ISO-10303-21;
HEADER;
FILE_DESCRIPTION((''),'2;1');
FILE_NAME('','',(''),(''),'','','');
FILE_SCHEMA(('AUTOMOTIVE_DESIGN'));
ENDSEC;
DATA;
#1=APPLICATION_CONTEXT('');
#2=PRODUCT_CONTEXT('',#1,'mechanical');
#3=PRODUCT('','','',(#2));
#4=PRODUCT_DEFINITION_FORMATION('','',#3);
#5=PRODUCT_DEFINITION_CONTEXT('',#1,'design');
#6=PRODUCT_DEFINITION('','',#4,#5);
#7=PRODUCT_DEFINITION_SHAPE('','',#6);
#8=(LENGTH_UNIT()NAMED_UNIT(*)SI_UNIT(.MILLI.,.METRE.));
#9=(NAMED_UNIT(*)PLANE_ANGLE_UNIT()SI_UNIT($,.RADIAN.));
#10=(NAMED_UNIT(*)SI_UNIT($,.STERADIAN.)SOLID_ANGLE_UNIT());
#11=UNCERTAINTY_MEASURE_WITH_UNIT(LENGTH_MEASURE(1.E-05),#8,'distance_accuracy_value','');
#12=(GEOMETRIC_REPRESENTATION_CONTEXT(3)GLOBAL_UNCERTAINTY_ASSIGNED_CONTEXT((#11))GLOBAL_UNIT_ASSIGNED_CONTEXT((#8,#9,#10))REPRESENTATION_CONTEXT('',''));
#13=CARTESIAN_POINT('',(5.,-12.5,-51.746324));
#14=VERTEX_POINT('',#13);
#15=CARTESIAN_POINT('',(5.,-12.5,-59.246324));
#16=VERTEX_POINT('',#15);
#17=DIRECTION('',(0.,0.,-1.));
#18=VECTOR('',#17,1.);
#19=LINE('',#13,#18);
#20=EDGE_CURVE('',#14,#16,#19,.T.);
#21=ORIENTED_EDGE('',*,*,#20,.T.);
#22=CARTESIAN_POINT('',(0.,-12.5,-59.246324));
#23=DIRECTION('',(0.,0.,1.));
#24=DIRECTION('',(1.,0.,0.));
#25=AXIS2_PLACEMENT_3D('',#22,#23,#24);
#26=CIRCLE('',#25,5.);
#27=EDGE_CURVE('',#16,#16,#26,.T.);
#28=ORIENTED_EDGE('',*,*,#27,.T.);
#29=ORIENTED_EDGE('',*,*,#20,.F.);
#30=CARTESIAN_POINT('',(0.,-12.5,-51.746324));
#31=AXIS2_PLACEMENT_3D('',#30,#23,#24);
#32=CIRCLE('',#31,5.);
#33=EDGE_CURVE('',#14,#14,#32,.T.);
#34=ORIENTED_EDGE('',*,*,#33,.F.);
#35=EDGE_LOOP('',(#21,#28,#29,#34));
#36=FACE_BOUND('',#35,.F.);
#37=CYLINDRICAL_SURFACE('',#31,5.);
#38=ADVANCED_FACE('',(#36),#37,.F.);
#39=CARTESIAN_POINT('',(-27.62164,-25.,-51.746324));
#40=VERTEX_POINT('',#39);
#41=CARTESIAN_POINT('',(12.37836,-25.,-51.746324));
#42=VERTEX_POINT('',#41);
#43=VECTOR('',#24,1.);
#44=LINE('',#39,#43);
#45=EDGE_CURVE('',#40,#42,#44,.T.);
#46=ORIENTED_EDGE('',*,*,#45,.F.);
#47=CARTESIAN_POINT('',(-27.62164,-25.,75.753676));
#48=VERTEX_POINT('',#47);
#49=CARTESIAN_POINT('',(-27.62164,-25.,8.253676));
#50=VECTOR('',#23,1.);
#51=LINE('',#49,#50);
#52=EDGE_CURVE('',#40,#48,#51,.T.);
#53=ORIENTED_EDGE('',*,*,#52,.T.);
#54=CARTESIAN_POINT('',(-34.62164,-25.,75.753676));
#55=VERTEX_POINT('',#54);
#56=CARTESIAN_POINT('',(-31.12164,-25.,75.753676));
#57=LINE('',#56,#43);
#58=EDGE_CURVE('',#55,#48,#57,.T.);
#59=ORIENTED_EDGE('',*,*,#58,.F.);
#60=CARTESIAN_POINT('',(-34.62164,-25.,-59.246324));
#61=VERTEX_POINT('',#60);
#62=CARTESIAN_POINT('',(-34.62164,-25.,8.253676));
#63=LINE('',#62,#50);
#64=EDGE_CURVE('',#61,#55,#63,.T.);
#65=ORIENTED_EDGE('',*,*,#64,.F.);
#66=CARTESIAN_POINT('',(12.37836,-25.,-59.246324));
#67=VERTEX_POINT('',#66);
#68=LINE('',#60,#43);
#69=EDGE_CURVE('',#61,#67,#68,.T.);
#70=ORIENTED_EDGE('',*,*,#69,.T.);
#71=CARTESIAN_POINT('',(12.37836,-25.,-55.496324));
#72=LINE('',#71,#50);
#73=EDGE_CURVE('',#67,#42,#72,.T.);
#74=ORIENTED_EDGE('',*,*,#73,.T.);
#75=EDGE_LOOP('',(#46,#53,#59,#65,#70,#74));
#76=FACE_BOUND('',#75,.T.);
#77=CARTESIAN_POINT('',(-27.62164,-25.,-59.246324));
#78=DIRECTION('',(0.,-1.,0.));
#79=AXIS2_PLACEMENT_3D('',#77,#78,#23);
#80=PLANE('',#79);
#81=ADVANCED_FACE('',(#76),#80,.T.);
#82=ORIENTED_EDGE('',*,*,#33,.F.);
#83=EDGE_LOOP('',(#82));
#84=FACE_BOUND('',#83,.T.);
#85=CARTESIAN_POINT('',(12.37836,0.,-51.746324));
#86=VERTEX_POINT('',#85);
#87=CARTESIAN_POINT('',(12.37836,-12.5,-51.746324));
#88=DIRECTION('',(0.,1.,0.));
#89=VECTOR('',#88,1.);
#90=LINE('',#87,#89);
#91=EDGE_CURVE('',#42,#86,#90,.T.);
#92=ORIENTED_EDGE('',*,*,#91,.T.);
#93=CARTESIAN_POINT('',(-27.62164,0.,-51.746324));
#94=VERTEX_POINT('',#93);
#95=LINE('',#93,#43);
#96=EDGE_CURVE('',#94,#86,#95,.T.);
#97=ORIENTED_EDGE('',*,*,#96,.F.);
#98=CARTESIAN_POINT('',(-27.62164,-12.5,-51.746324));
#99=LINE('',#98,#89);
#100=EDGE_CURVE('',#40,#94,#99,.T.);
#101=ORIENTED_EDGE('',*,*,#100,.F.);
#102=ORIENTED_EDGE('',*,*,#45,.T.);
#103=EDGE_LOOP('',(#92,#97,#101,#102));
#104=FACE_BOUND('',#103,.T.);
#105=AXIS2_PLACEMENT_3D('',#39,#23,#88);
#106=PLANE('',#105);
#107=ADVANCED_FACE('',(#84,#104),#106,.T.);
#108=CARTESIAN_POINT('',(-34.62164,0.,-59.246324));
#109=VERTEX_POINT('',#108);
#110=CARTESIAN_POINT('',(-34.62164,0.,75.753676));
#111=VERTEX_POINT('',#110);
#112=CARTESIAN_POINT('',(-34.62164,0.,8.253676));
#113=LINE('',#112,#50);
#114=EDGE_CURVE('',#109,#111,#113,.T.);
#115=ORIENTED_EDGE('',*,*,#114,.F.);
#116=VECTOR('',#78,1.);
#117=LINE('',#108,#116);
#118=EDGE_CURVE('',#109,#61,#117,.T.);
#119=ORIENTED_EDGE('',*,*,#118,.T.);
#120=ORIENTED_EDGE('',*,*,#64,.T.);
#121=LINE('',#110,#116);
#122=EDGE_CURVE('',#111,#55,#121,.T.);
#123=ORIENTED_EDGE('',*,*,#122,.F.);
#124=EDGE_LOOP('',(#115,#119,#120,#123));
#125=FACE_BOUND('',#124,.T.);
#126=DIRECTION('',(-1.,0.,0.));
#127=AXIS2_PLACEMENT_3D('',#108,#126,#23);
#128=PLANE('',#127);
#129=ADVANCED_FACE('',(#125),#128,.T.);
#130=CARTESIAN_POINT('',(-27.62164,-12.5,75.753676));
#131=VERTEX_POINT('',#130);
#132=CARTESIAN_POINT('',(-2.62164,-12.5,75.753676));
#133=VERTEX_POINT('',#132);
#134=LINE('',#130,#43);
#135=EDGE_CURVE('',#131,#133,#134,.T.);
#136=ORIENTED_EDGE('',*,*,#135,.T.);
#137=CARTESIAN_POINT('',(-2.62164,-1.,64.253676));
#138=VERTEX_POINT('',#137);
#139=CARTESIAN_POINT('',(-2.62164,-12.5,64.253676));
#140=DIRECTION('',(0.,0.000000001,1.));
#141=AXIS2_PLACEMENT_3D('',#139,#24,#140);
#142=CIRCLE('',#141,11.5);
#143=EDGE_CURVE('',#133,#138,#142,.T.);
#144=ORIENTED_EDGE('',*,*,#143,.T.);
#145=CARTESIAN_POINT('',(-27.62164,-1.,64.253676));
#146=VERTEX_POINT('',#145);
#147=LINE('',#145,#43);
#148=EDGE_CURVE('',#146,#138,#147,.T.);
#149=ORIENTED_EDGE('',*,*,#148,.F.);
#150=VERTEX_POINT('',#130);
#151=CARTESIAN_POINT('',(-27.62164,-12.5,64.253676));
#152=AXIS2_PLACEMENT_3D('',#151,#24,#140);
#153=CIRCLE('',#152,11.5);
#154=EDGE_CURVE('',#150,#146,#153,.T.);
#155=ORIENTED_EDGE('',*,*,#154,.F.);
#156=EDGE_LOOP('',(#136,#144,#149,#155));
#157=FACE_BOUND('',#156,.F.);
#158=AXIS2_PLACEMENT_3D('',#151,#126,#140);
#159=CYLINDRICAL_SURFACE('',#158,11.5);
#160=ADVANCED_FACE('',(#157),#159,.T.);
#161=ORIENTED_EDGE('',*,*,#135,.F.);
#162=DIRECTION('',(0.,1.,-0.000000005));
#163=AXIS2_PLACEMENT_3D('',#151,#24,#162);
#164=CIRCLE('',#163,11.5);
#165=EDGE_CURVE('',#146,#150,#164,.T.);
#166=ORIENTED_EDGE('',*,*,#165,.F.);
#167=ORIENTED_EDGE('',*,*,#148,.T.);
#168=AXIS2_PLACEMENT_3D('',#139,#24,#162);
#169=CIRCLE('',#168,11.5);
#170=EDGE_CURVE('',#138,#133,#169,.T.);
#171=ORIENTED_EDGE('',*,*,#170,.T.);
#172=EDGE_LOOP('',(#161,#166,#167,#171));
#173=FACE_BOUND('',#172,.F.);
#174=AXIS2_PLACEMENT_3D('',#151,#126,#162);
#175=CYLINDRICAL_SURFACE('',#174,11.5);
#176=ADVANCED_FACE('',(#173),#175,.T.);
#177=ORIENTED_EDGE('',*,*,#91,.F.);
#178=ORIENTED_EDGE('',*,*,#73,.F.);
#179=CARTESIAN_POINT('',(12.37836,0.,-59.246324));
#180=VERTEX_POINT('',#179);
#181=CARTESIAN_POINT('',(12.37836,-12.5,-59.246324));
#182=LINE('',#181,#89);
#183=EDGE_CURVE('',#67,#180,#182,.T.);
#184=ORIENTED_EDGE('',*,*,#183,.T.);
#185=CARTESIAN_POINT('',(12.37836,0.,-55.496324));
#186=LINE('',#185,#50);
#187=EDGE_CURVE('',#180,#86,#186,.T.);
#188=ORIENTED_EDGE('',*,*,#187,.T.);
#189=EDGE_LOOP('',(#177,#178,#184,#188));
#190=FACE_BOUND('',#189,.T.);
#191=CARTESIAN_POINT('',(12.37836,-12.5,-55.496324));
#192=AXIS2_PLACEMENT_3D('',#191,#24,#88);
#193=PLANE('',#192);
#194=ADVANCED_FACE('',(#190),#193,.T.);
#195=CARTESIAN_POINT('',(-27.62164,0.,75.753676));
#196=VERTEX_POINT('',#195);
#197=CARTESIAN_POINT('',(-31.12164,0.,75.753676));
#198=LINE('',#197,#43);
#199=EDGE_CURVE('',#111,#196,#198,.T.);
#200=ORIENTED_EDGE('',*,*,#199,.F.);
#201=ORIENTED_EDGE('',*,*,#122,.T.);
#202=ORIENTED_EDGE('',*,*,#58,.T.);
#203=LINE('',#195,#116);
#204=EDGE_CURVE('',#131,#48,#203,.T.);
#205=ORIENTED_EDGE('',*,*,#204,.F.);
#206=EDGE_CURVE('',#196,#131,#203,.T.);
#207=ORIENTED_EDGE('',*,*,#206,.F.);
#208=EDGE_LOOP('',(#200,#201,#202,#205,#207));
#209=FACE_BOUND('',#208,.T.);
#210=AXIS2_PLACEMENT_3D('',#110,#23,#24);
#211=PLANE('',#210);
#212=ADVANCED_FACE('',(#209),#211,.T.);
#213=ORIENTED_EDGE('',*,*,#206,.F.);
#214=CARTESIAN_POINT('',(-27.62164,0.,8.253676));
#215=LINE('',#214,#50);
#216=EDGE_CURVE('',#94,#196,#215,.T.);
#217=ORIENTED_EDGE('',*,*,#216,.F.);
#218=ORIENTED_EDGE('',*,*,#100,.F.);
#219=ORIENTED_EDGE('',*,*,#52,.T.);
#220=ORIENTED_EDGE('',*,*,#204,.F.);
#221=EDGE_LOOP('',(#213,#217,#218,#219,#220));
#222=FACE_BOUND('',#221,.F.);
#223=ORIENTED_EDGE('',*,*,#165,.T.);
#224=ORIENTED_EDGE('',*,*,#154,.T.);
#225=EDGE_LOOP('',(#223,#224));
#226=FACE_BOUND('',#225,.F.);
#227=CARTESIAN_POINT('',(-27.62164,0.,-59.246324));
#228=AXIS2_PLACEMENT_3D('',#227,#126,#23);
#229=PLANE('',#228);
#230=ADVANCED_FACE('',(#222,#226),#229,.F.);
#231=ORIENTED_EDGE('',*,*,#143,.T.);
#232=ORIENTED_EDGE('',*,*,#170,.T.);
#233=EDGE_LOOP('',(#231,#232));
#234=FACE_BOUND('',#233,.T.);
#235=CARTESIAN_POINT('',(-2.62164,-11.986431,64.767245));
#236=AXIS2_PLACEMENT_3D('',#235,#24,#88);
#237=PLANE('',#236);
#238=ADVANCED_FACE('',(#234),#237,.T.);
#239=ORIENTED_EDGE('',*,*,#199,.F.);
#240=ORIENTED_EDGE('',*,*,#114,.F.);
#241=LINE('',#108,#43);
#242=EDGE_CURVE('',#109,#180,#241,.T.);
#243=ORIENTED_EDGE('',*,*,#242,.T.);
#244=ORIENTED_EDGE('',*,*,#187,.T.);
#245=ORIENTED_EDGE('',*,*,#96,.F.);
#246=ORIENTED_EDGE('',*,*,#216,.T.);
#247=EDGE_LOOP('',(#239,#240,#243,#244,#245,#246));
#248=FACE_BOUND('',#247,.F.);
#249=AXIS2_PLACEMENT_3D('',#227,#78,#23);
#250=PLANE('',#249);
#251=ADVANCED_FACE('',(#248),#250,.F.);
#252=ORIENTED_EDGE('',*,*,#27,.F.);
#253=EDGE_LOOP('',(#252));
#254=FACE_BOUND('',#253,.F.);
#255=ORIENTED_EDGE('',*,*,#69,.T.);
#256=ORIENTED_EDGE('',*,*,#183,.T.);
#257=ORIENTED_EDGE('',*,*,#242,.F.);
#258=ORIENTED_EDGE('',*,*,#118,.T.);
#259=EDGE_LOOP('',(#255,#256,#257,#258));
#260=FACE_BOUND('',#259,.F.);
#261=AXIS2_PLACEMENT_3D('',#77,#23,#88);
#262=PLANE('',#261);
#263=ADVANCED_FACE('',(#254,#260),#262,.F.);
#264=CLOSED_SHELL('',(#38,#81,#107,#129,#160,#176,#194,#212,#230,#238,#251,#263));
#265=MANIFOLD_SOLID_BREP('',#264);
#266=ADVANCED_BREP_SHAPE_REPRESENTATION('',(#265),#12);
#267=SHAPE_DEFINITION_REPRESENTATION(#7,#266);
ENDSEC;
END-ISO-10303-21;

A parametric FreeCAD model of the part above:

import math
import FreeCAD as App
import Part
import Sketcher

doc = App.newDocument("Part")
body = doc.addObject("PartDesign::Body", "Body")

# Sketch on XZ plane
sketch1 = doc.addObject("Sketcher::SketchObject", "Sketch")
body.addObject(sketch1)
sketch1.AttachmentSupport = (doc.XZ_Plane, [""])
sketch1.MapMode = "FlatFace"
sketch1.addGeometry(Part.LineSegment(App.Vector(-34.62164, 75.753676, 0), App.Vector(-34.62164, -59.246324, 0)), False)
sketch1.addGeometry(Part.LineSegment(App.Vector(-34.62164, -59.246324, 0), App.Vector(-27.62164, -59.246324, 0)), False)
sketch1.addGeometry(Part.LineSegment(App.Vector(-27.62164, -59.246324, 0), App.Vector(-27.62164, 75.753676, 0)), False)
sketch1.addGeometry(Part.LineSegment(App.Vector(-27.62164, 75.753676, 0), App.Vector(-34.62164, 75.753676, 0)), False)
sketch1.addConstraint(Sketcher.Constraint("Coincident", 0, 2, 1, 1))
sketch1.addConstraint(Sketcher.Constraint("Coincident", 1, 2, 2, 1))
sketch1.addConstraint(Sketcher.Constraint("Coincident", 2, 2, 3, 1))
sketch1.addConstraint(Sketcher.Constraint("Coincident", 3, 2, 0, 1))
sketch1.addConstraint(Sketcher.Constraint("Vertical", 0))
sketch1.addConstraint(Sketcher.Constraint("Horizontal", 1))
sketch1.addConstraint(Sketcher.Constraint("Vertical", 2))
sketch1.addConstraint(Sketcher.Constraint("Horizontal", 3))
sketch1.addConstraint(Sketcher.Constraint("DistanceX", 1, 1, 1, 2, 7.0))
sketch1.addConstraint(Sketcher.Constraint("DistanceY", 0, 2, 0, 1, 135.0))
sketch1.addConstraint(Sketcher.Constraint("DistanceX", 0, 2, -1, 1, 34.62164))
sketch1.addConstraint(Sketcher.Constraint("DistanceY", 0, 2, -1, 1, 59.246324))
pad1 = doc.addObject("PartDesign::Pad", "Pad")
body.addObject(pad1)
pad1.Profile = sketch1
pad1.Length = 25

# Sketch on YZ plane
sketch2 = doc.addObject("Sketcher::SketchObject", "Sketch001")
body.addObject(sketch2)
sketch2.AttachmentSupport = (doc.YZ_Plane, [""])
sketch2.MapMode = "FlatFace"
sketch2.AttachmentOffset = App.Placement(App.Vector(0, 0, -27.62164), App.Rotation())
sketch2.addGeometry(Part.ArcOfCircle(Part.Circle(App.Vector(-12.5, 64.253676, 0), App.Vector(0, 0, 1), 11.5), math.radians(90), math.radians(360)), False)
sketch2.addGeometry(Part.ArcOfCircle(Part.Circle(App.Vector(-12.5, 64.253676, 0), App.Vector(0, 0, 1), 11.5), math.radians(0), math.radians(90)), False)
sketch2.addConstraint(Sketcher.Constraint("Tangent", 0, 1, 1, 2))
sketch2.addConstraint(Sketcher.Constraint("Coincident", 1, 1, 0, 2))
sketch2.addConstraint(Sketcher.Constraint("Horizontal", 0, 3, 1, 1))
sketch2.addConstraint(Sketcher.Constraint("Vertical", 1, 3, 0, 1))
sketch2.addConstraint(Sketcher.Constraint("Radius", 0, 11.5))
sketch2.addConstraint(Sketcher.Constraint("DistanceX", 1, 1, -1, 1, 1.0))
sketch2.addConstraint(Sketcher.Constraint("DistanceY", -1, 1, 0, 3, 64.253676))
pad2 = doc.addObject("PartDesign::Pad", "Pad001")
body.addObject(pad2)
pad2.Profile = sketch2
pad2.Length = 25

# Sketch on YZ plane
sketch3 = doc.addObject("Sketcher::SketchObject", "Sketch002")
body.addObject(sketch3)
sketch3.AttachmentSupport = (doc.YZ_Plane, [""])
sketch3.MapMode = "FlatFace"
sketch3.AttachmentOffset = App.Placement(App.Vector(0, 0, -27.62164), App.Rotation())
sketch3.addGeometry(Part.LineSegment(App.Vector(-25, -51.746324, 0), App.Vector(-25, -59.246324, 0)), False)
sketch3.addGeometry(Part.LineSegment(App.Vector(-25, -59.246324, 0), App.Vector(0, -59.246324, 0)), False)
sketch3.addGeometry(Part.LineSegment(App.Vector(0, -59.246324, 0), App.Vector(0, -51.746324, 0)), False)
sketch3.addGeometry(Part.LineSegment(App.Vector(0, -51.746324, 0), App.Vector(-25, -51.746324, 0)), False)
sketch3.addConstraint(Sketcher.Constraint("Coincident", 0, 2, 1, 1))
sketch3.addConstraint(Sketcher.Constraint("Coincident", 1, 2, 2, 1))
sketch3.addConstraint(Sketcher.Constraint("Coincident", 2, 2, 3, 1))
sketch3.addConstraint(Sketcher.Constraint("Coincident", 3, 2, 0, 1))
sketch3.addConstraint(Sketcher.Constraint("Vertical", 0))
sketch3.addConstraint(Sketcher.Constraint("Horizontal", 1))
sketch3.addConstraint(Sketcher.Constraint("Vertical", 2))
sketch3.addConstraint(Sketcher.Constraint("Horizontal", 3))
sketch3.addConstraint(Sketcher.Constraint("PointOnObject", 1, 2, -2))
sketch3.addConstraint(Sketcher.Constraint("DistanceX", 1, 1, 1, 2, 25.0))
sketch3.addConstraint(Sketcher.Constraint("DistanceY", 0, 2, 0, 1, 7.5))
sketch3.addConstraint(Sketcher.Constraint("DistanceY", 0, 2, -1, 1, 59.246324))
pad3 = doc.addObject("PartDesign::Pad", "Pad002")
body.addObject(pad3)
pad3.Profile = sketch3
pad3.Length = 40

# Sketch on XY plane
sketch4 = doc.addObject("Sketcher::SketchObject", "Sketch003")
body.addObject(sketch4)
sketch4.AttachmentSupport = (doc.XY_Plane, [""])
sketch4.MapMode = "FlatFace"
sketch4.AttachmentOffset = App.Placement(App.Vector(0, 0, -51.746324), App.Rotation())
sketch4.addGeometry(Part.Circle(App.Vector(0, -12.5, 0), App.Vector(0, 0, 1), 5), False)
sketch4.addConstraint(Sketcher.Constraint("PointOnObject", 0, 3, -2))
sketch4.addConstraint(Sketcher.Constraint("Diameter", 0, 10.0))
sketch4.addConstraint(Sketcher.Constraint("DistanceY", 0, 3, -1, 1, 12.5))
pocket1 = doc.addObject("PartDesign::Pocket", "Pocket")
body.addObject(pocket1)
pocket1.Profile = sketch4
pocket1.Type = "ThroughAll"

doc.recompute()
